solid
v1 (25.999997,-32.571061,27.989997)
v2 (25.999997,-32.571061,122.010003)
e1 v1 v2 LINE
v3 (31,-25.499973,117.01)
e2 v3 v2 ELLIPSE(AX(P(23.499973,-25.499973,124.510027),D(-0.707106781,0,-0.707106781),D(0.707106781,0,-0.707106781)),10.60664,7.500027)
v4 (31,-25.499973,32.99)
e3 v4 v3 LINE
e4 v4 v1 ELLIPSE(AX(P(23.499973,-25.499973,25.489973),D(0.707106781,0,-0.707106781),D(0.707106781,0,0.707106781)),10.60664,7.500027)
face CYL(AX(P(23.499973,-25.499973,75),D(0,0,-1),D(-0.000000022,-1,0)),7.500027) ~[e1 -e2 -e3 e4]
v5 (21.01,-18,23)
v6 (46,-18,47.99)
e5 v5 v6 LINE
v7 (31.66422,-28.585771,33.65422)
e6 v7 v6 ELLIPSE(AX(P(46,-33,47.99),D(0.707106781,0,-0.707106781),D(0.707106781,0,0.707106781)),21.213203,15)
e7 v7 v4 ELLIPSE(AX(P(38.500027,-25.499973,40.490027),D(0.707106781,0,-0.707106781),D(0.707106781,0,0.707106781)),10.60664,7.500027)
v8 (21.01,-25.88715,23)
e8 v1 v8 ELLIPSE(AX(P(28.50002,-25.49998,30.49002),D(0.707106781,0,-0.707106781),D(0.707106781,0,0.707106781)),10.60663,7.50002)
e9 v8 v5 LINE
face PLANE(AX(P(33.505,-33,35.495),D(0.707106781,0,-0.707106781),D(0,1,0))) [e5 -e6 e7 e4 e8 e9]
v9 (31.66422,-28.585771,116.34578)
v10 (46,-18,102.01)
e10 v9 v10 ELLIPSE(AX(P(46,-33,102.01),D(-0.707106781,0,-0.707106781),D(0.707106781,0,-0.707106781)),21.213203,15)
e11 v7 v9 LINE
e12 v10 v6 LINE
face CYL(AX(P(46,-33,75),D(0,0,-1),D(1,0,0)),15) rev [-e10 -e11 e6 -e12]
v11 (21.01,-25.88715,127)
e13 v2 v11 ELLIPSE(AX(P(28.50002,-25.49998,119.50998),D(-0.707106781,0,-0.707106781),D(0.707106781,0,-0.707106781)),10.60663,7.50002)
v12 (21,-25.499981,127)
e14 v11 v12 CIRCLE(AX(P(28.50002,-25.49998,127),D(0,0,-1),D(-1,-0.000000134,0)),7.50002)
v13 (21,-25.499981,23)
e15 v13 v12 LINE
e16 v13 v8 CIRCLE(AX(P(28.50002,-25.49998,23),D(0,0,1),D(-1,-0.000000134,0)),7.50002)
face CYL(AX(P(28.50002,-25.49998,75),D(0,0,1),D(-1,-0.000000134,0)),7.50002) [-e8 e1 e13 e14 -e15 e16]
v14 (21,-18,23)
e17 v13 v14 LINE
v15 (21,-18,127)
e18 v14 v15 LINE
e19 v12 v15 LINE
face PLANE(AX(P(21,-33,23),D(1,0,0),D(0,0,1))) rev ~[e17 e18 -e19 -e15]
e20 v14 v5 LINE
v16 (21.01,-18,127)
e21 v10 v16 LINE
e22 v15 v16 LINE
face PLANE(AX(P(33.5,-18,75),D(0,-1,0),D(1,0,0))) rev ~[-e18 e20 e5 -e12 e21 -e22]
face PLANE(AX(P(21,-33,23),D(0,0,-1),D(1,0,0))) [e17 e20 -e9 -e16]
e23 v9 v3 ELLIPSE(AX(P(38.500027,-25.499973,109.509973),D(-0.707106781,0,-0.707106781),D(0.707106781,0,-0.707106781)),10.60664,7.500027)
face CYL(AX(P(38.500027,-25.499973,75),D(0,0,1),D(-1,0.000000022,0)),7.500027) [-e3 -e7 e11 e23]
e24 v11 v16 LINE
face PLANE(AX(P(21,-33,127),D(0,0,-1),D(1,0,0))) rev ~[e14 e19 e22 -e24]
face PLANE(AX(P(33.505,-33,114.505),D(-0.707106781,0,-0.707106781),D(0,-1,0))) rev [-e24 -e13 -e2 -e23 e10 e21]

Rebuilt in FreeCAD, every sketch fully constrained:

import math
import FreeCAD as App
import Part
import Sketcher


def edges_at(feature, points):
    """Names of the edges that pass closest to the given points."""
    edges = feature.Shape.Edges
    near = lambda p: min(range(len(edges)), key=lambda i: edges[i].distToShape(Part.Vertex(*p))[0])
    return sorted({f"Edge{near(p) + 1}" for p in points})


def add_polygon(sketch, points):
    """Adds a closed chain of lines whose ends are joined by coincident constraints."""
    first, n = sketch.GeometryCount, len(points)
    for a, b in zip(points, points[1:] + points[:1]):
        sketch.addGeometry(Part.LineSegment(App.Vector(*a, 0), App.Vector(*b, 0)), False)
    for i in range(n):
        sketch.addConstraint(Sketcher.Constraint("Coincident", first + i, 2, first + (i + 1) % n, 1))

doc = App.newDocument("Part")
body = doc.addObject("PartDesign::Body", "Body")

# Sketch on XZ plane
sketch1 = doc.addObject("Sketcher::SketchObject", "Sketch")
body.addObject(sketch1)
sketch1.AttachmentSupport = (doc.XZ_Plane, [""])
sketch1.MapMode = "FlatFace"
sketch1.AttachmentOffset = App.Placement(App.Vector(0, 0, 33), App.Rotation())
add_polygon(sketch1, [(21, 127), (21, 23), (46, 23), (46, 127)])  # lines 0-3
sketch1.addConstraint(Sketcher.Constraint("Vertical", 0))
sketch1.addConstraint(Sketcher.Constraint("Horizontal", 1))
sketch1.addConstraint(Sketcher.Constraint("Vertical", 2))
sketch1.addConstraint(Sketcher.Constraint("Horizontal", 3))
sketch1.addConstraint(Sketcher.Constraint("DistanceX", 1, 1, 1, 2, 25.0))
sketch1.addConstraint(Sketcher.Constraint("DistanceY", 0, 2, 0, 1, 104.0))
sketch1.addConstraint(Sketcher.Constraint("DistanceX", -1, 1, 0, 2, 21.0))
sketch1.addConstraint(Sketcher.Constraint("DistanceY", -1, 1, 0, 2, 23.0))
pad1 = doc.addObject("PartDesign::Pad", "Pad")
body.addObject(pad1)
pad1.Profile = sketch1
pad1.Length = 15
pad1.Reversed = True
doc.recompute()

chamfer = doc.addObject("PartDesign::Chamfer", "Chamfer")
body.addObject(chamfer)
chamfer.Base = (pad1, edges_at(pad1, [(46, -25.5, 127), (46, -25.5, 23)]))
chamfer.Size = 24.99

# Sketch on XY plane
sketch2 = doc.addObject("Sketcher::SketchObject", "Sketch001")
body.addObject(sketch2)
sketch2.AttachmentSupport = (doc.XY_Plane, [""])
sketch2.MapMode = "FlatFace"
sketch2.AttachmentOffset = App.Placement(App.Vector(0, 0, 75), App.Rotation())
sketch2.addGeometry(Part.Circle(App.Vector(46, -33, 0), App.Vector(0, 0, 1), 15), False)
sketch2.addConstraint(Sketcher.Constraint("Diameter", 0, 30.0))
sketch2.addConstraint(Sketcher.Constraint("DistanceX", -1, 1, 0, 3, 46.0))
sketch2.addConstraint(Sketcher.Constraint("DistanceY", 0, 3, -1, 1, 33.0))
pocket1 = doc.addObject("PartDesign::Pocket", "Pocket")
body.addObject(pocket1)
pocket1.Profile = sketch2
pocket1.Type = "ThroughAll"
pocket1.Midplane = True

# Sketch on XY plane
sketch3 = doc.addObject("Sketcher::SketchObject", "Sketch002")
body.addObject(sketch3)
sketch3.AttachmentSupport = (doc.XY_Plane, [""])
sketch3.MapMode = "FlatFace"
sketch3.AttachmentOffset = App.Placement(App.Vector(0, 0, 75), App.Rotation())
sketch3.addGeometry(Part.ArcOfCircle(Part.Circle(App.Vector(39, -41, 0), App.Vector(0, 0, 1), 8), math.radians(90), math.radians(180)), False)
sketch3.addGeometry(Part.ArcOfCircle(Part.Circle(App.Vector(39, -25, 0), App.Vector(0, 0, 1), 8), math.radians(180), math.radians(270)), False)
sketch3.addGeometry(Part.ArcOfCircle(Part.Circle(App.Vector(23, -25, 0), App.Vector(0, 0, 1), 8), math.radians(-90), math.radians(0)), False)
sketch3.addGeometry(Part.ArcOfCircle(Part.Circle(App.Vector(23, -41, 0), App.Vector(0, 0, 1), 8), math.radians(0), math.radians(90)), False)
sketch3.addConstraint(Sketcher.Constraint("Tangent", 0, 1, 1, 2))
sketch3.addConstraint(Sketcher.Constraint("Tangent", 1, 1, 2, 2))
sketch3.addConstraint(Sketcher.Constraint("Tangent", 2, 1, 3, 2))
sketch3.addConstraint(Sketcher.Constraint("Coincident", 3, 1, 0, 2))
sketch3.addConstraint(Sketcher.Constraint("Equal", 0, 1))
sketch3.addConstraint(Sketcher.Constraint("Equal", 1, 2))
sketch3.addConstraint(Sketcher.Constraint("Equal", 2, 3))
sketch3.addConstraint(Sketcher.Constraint("Horizontal", 1, 3, 2, 3))
sketch3.addConstraint(Sketcher.Constraint("Vertical", 0, 3, 1, 3))
sketch3.addConstraint(Sketcher.Constraint("DistanceY", 0, 1, -1, 1, 33.0))
sketch3.addConstraint(Sketcher.Constraint("DistanceX", -1, 1, 1, 1, 31.0))
sketch3.addConstraint(Sketcher.Constraint("DistanceY", 3, 1, -1, 1, 40.5))
sketch3.addConstraint(Sketcher.Constraint("Radius", 3, 7.500029))
pocket2 = doc.addObject("PartDesign::Pocket", "Pocket001")
body.addObject(pocket2)
pocket2.Profile = sketch3
pocket2.Type = "ThroughAll"
pocket2.Midplane = True

# Sketch on XY plane
sketch4 = doc.addObject("Sketcher::SketchObject", "Sketch003")
body.addObject(sketch4)
sketch4.AttachmentSupport = (doc.XY_Plane, [""])
sketch4.MapMode = "FlatFace"
sketch4.AttachmentOffset = App.Placement(App.Vector(0, 0, 75), App.Rotation())
sketch4.addGeometry(Part.ArcOfCircle(Part.Circle(App.Vector(29, -41, 0), App.Vector(0, 0, 1), 8), math.radians(90), math.radians(180)), False)
sketch4.addGeometry(Part.ArcOfCircle(Part.Circle(App.Vector(29, -25, 0), App.Vector(0, 0, 1), 8), math.radians(-180), math.radians(-90)), False)
sketch4.addGeometry(Part.ArcOfCircle(Part.Circle(App.Vector(13, -25, 0), App.Vector(0, 0, 1), 8), math.radians(-90), math.radians(0)), False)
sketch4.addGeometry(Part.ArcOfCircle(Part.Circle(App.Vector(13, -41, 0), App.Vector(0, 0, 1), 8), math.radians(0), math.radians(90)), False)
sketch4.addConstraint(Sketcher.Constraint("Tangent", 0, 1, 1, 2))
sketch4.addConstraint(Sketcher.Constraint("Tangent", 1, 1, 2, 2))
sketch4.addConstraint(Sketcher.Constraint("Tangent", 2, 1, 3, 2))
sketch4.addConstraint(Sketcher.Constraint("Coincident", 3, 1, 0, 2))
sketch4.addConstraint(Sketcher.Constraint("Equal", 0, 1))
sketch4.addConstraint(Sketcher.Constraint("Equal", 1, 2))
sketch4.addConstraint(Sketcher.Constraint("Equal", 2, 3))
sketch4.addConstraint(Sketcher.Constraint("Horizontal", 1, 3, 2, 3))
sketch4.addConstraint(Sketcher.Constraint("Vertical", 0, 3, 1, 3))
sketch4.addConstraint(Sketcher.Constraint("DistanceY", 0, 1, -1, 1, 33.0))
sketch4.addConstraint(Sketcher.Constraint("DistanceX", -1, 1, 1, 1, 21.0))
sketch4.addConstraint(Sketcher.Constraint("DistanceY", 3, 1, -1, 1, 40.5))
sketch4.addConstraint(Sketcher.Constraint("Radius", 0, 7.500018))
pocket3 = doc.addObject("PartDesign::Pocket", "Pocket002")
body.addObject(pocket3)
pocket3.Profile = sketch4
pocket3.Type = "ThroughAll"
pocket3.Midplane = True

doc.recompute()
